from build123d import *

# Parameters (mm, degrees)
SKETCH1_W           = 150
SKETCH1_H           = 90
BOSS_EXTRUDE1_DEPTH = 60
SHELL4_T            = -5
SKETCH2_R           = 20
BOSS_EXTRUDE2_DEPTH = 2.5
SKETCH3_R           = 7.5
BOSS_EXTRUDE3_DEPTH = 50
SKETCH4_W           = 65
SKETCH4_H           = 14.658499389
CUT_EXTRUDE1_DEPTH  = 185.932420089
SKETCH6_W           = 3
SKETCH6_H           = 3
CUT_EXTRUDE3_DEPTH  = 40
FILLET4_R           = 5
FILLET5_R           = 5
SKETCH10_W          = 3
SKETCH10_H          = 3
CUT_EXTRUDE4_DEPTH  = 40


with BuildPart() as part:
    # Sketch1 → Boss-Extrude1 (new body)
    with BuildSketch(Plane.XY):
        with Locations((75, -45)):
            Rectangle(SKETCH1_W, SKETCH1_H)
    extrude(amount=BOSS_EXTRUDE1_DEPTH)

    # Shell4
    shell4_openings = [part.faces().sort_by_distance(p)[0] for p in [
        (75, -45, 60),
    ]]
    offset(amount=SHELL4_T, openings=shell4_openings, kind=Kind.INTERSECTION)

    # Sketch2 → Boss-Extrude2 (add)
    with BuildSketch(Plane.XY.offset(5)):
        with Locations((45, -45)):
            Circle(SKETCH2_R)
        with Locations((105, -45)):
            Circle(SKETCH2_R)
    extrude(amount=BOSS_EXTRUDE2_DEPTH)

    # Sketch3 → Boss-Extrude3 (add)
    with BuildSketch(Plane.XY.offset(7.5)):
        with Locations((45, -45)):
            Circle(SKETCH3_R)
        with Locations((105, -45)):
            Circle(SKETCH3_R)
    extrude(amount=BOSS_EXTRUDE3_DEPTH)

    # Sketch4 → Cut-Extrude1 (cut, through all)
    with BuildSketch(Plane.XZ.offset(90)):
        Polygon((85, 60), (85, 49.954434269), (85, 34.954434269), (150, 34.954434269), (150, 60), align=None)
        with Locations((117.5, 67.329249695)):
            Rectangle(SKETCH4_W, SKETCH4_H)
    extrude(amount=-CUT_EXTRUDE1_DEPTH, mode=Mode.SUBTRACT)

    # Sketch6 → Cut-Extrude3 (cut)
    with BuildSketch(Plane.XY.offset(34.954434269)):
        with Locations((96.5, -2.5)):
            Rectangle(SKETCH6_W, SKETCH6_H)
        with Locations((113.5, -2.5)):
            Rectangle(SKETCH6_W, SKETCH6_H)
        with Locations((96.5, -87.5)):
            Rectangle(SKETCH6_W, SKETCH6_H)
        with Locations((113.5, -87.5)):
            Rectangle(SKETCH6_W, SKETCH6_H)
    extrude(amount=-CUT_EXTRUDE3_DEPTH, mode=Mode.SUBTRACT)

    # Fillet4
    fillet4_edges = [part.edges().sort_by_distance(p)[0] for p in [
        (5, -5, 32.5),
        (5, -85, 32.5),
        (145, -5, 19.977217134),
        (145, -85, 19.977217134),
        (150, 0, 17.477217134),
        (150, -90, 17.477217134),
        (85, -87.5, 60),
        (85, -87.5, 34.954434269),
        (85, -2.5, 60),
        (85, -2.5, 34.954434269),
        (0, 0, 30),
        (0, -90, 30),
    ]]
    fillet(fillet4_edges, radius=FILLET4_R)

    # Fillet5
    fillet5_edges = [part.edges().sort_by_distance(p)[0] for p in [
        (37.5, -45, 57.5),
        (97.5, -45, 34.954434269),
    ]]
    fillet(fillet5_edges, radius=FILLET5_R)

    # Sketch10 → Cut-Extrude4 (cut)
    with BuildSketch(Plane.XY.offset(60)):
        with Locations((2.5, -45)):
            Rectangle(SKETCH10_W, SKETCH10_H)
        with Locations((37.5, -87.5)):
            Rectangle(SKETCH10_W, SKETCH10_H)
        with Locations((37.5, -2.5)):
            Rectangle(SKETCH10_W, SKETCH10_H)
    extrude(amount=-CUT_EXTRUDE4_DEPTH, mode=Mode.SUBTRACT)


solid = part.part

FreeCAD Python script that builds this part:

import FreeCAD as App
import Part
import Sketcher
from FreeCAD import Vector
Q = App.Units.Quantity


def edges_at(feature, points):
    """Names of the edges that pass closest to the given points."""
    edges = feature.Shape.Edges
    near = lambda p: min(range(len(edges)), key=lambda i: edges[i].distToShape(Part.Vertex(*p))[0])
    return sorted({f"Edge{near(p) + 1}" for p in points})


def faces_at(feature, points):
    """Names of the faces that lie closest to the given points."""
    faces = feature.Shape.Faces
    near = lambda p: min(range(len(faces)), key=lambda i: faces[i].distToShape(Part.Vertex(*p))[0])
    return sorted({f"Face{near(p) + 1}" for p in points})

doc = App.newDocument("Part")
body = doc.addObject("PartDesign::Body", "Body")

sketch1 = doc.addObject("Sketcher::SketchObject", "Sketch")
body.addObject(sketch1)
sketch1.AttachmentSupport = (doc.XY_Plane, [""])
sketch1.MapMode = "FlatFace"
sketch1.addGeometry([
    Part.LineSegment(Vector(0, 0, 0), Vector(0, -90, 0)),
    Part.LineSegment(Vector(0, -90, 0), Vector(150, -90, 0)),
    Part.LineSegment(Vector(150, -90, 0), Vector(150, 0, 0)),
    Part.LineSegment(Vector(150, 0, 0), Vector(0, 0, 0)),
], False)
sketch1.addConstraint([
    Sketcher.Constraint("Coincident", 0, 2, 1, 1),
    Sketcher.Constraint("Coincident", 1, 2, 2, 1),
    Sketcher.Constraint("Coincident", 2, 2, 3, 1),
    Sketcher.Constraint("Coincident", 3, 2, 0, 1),
    Sketcher.Constraint("Vertical", 0),
    Sketcher.Constraint("Horizontal", 1),
    Sketcher.Constraint("Vertical", 2),
    Sketcher.Constraint("Horizontal", 3),
    Sketcher.Constraint("Coincident", 3, 2, -1, 1),
    Sketcher.Constraint("DistanceX", 1, 1, 1, 2, Q("150 mm")),
    Sketcher.Constraint("DistanceY", 0, 2, 0, 1, Q("90 mm")),
])
pad1 = doc.addObject("PartDesign::Pad", "Pad")
body.addObject(pad1)
pad1.Profile = sketch1
pad1.Length = 60
doc.recompute()

thickness = doc.addObject("PartDesign::Thickness", "Thickness")
body.addObject(thickness)
thickness.Base = (pad1, faces_at(pad1, [(75, -45, 60)]))
thickness.Value = 5
thickness.Reversed = True
thickness.Join = "Intersection"

sketch2 = doc.addObject("Sketcher::SketchObject", "Sketch001")
body.addObject(sketch2)
sketch2.AttachmentSupport = (doc.XY_Plane, [""])
sketch2.MapMode = "FlatFace"
sketch2.AttachmentOffset = App.Placement(Vector(0, 0, 5), App.Rotation())
sketch2.addGeometry([
    Part.Circle(Vector(45, -45, 0), Vector(0, 0, 1), 20),
    Part.Circle(Vector(105, -45, 0), Vector(0, 0, 1), 20),
], False)
sketch2.addConstraint([
    Sketcher.Constraint("Equal", 0, 1),
    Sketcher.Constraint("Horizontal", 0, 3, 1, 3),
    Sketcher.Constraint("Diameter", 0, Q("40 mm")),
    Sketcher.Constraint("DistanceX", -1, 1, 0, 3, Q("45 mm")),
    Sketcher.Constraint("DistanceY", 0, 3, -1, 1, Q("45 mm")),
    Sketcher.Constraint("DistanceX", -1, 1, 1, 3, Q("105 mm")),
])
pad2 = doc.addObject("PartDesign::Pad", "Pad001")
body.addObject(pad2)
pad2.Profile = sketch2
pad2.Length = 2.5

sketch3 = doc.addObject("Sketcher::SketchObject", "Sketch002")
body.addObject(sketch3)
sketch3.AttachmentSupport = (doc.XY_Plane, [""])
sketch3.MapMode = "FlatFace"
sketch3.AttachmentOffset = App.Placement(Vector(0, 0, 7.5), App.Rotation())
sketch3.addGeometry([
    Part.Circle(Vector(45, -45, 0), Vector(0, 0, 1), 8),
    Part.Circle(Vector(105, -45, 0), Vector(0, 0, 1), 8),
], False)
sketch3.addConstraint([
    Sketcher.Constraint("Equal", 0, 1),
    Sketcher.Constraint("Horizontal", 0, 3, 1, 3),
    Sketcher.Constraint("Diameter", 0, Q("15 mm")),
    Sketcher.Constraint("DistanceX", -1, 1, 0, 3, Q("45 mm")),
    Sketcher.Constraint("DistanceY", 0, 3, -1, 1, Q("45 mm")),
    Sketcher.Constraint("DistanceX", -1, 1, 1, 3, Q("105 mm")),
])
pad3 = doc.addObject("PartDesign::Pad", "Pad002")
body.addObject(pad3)
pad3.Profile = sketch3
pad3.Length = 50

sketch4 = doc.addObject("Sketcher::SketchObject", "Sketch003")
body.addObject(sketch4)
sketch4.AttachmentSupport = (doc.XZ_Plane, [""])
sketch4.MapMode = "FlatFace"
sketch4.AttachmentOffset = App.Placement(Vector(0, 0, 90), App.Rotation())
sketch4.addGeometry([
    Part.LineSegment(Vector(85, 35, 0), Vector(150, 35, 0)),
    Part.LineSegment(Vector(150, 35, 0), Vector(150, 75, 0)),
    Part.LineSegment(Vector(150, 75, 0), Vector(85, 75, 0)),
    Part.LineSegment(Vector(85, 75, 0), Vector(85, 35, 0)),
], False)
sketch4.addConstraint([
    Sketcher.Constraint("Coincident", 0, 2, 1, 1),
    Sketcher.Constraint("Coincident", 1, 2, 2, 1),
    Sketcher.Constraint("Coincident", 2, 2, 3, 1),
    Sketcher.Constraint("Coincident", 3, 2, 0, 1),
    Sketcher.Constraint("Horizontal", 0),
    Sketcher.Constraint("Vertical", 1),
    Sketcher.Constraint("Horizontal", 2),
    Sketcher.Constraint("Vertical", 3),
    Sketcher.Constraint("DistanceX", 0, 1, 0, 2, Q("65 mm")),
    Sketcher.Constraint("DistanceX", -1, 1, 0, 2, Q("150 mm")),
    Sketcher.Constraint("DistanceY", -1, 1, 1, 2, Q("74.658499 mm")),
    Sketcher.Constraint("DistanceY", 1, 1, 1, 2, Q("39.704065 mm")),
])
pocket1 = doc.addObject("PartDesign::Pocket", "Pocket")
body.addObject(pocket1)
pocket1.Profile = sketch4
pocket1.Type = "ThroughAll"

sketch5 = doc.addObject("Sketcher::SketchObject", "Sketch004")
body.addObject(sketch5)
sketch5.AttachmentSupport = (doc.XY_Plane, [""])
sketch5.MapMode = "FlatFace"
sketch5.AttachmentOffset = App.Placement(Vector(0, 0, 34.954434), App.Rotation())
sketch5.addGeometry([
    Part.LineSegment(Vector(95, -1, 0), Vector(95, -4, 0)),
    Part.LineSegment(Vector(95, -4, 0), Vector(98, -4, 0)),
    Part.LineSegment(Vector(98, -4, 0), Vector(98, -1, 0)),
    Part.LineSegment(Vector(98, -1, 0), Vector(95, -1, 0)),
    Part.LineSegment(Vector(112, -1, 0), Vector(112, -4, 0)),
    Part.LineSegment(Vector(112, -4, 0), Vector(115, -4, 0)),
    Part.LineSegment(Vector(115, -4, 0), Vector(115, -1, 0)),
    Part.LineSegment(Vector(115, -1, 0), Vector(112, -1, 0)),
    Part.LineSegment(Vector(95, -86, 0), Vector(95, -89, 0)),
    Part.LineSegment(Vector(95, -89, 0), Vector(98, -89, 0)),
    Part.LineSegment(Vector(98, -89, 0), Vector(98, -86, 0)),
    Part.LineSegment(Vector(98, -86, 0), Vector(95, -86, 0)),
    Part.LineSegment(Vector(112, -86, 0), Vector(112, -89, 0)),
    Part.LineSegment(Vector(112, -89, 0), Vector(115, -89, 0)),
    Part.LineSegment(Vector(115, -89, 0), Vector(115, -86, 0)),
    Part.LineSegment(Vector(115, -86, 0), Vector(112, -86, 0)),
], False)
sketch5.addConstraint([
    Sketcher.Constraint("Coincident", 0, 2, 1, 1),
    Sketcher.Constraint("Coincident", 1, 2, 2, 1),
    Sketcher.Constraint("Coincident", 2, 2, 3, 1),
    Sketcher.Constraint("Coincident", 3, 2, 0, 1),
    Sketcher.Constraint("Coincident", 4, 2, 5, 1),
    Sketcher.Constraint("Coincident", 5, 2, 6, 1),
    Sketcher.Constraint("Coincident", 6, 2, 7, 1),
    Sketcher.Constraint("Coincident", 7, 2, 4, 1),
    Sketcher.Constraint("Coincident", 8, 2, 9, 1),
    Sketcher.Constraint("Coincident", 9, 2, 10, 1),
    Sketcher.Constraint("Coincident", 10, 2, 11, 1),
    Sketcher.Constraint("Coincident", 11, 2, 8, 1),
    Sketcher.Constraint("Coincident", 12, 2, 13, 1),
    Sketcher.Constraint("Coincident", 13, 2, 14, 1),
    Sketcher.Constraint("Coincident", 14, 2, 15, 1),
    Sketcher.Constraint("Coincident", 15, 2, 12, 1),
    Sketcher.Constraint("Vertical", 0),
    Sketcher.Constraint("Horizontal", 1),
    Sketcher.Constraint("Vertical", 2),
    Sketcher.Constraint("Horizontal", 3),
    Sketcher.Constraint("Vertical", 4),
    Sketcher.Constraint("Horizontal", 5),
    Sketcher.Constraint("Vertical", 6),
    Sketcher.Constraint("Horizontal", 7),
    Sketcher.Constraint("Vertical", 8),
    Sketcher.Constraint("Horizontal", 9),
    Sketcher.Constraint("Vertical", 10),
    Sketcher.Constraint("Horizontal", 11),
    Sketcher.Constraint("Vertical", 12),
    Sketcher.Constraint("Horizontal", 13),
    Sketcher.Constraint("Vertical", 14),
    Sketcher.Constraint("Horizontal", 15),
    Sketcher.Constraint("Horizontal", 1, 2, 4, 2),
    Sketcher.Constraint("Horizontal", 3, 2, 6, 2),
    Sketcher.Constraint("Horizontal", 9, 2, 12, 2),
    Sketcher.Constraint("Horizontal", 11, 2, 14, 2),
    Sketcher.Constraint("Vertical", 3, 2, 8, 2),
    Sketcher.Constraint("Vertical", 2, 2, 9, 2),
    Sketcher.Constraint("Vertical", 7, 2, 12, 2),
    Sketcher.Constraint("Vertical", 6, 2, 13, 2),
    Sketcher.Constraint("Equal", 3, 5),
    Sketcher.Constraint("Equal", 15, 0),
    Sketcher.Constraint("Equal", 6, 8),
    Sketcher.Constraint("DistanceX", 1, 1, 1, 2, Q("3 mm")),
    Sketcher.Constraint("DistanceX", -1, 1, 0, 2, Q("95 mm")),
    Sketcher.Constraint("DistanceY", 0, 2, -1, 1, Q("4 mm")),
    Sketcher.Constraint("DistanceX", -1, 1, 4, 2, Q("112 mm")),
    Sketcher.Constraint("DistanceY", 8, 2, -1, 1, Q("89 mm")),
])
pocket2 = doc.addObject("PartDesign::Pocket", "Pocket001")
body.addObject(pocket2)
pocket2.Profile = sketch5
pocket2.Length = 40
doc.recompute()

fillet = doc.addObject("PartDesign::Fillet", "Fillet")
body.addObject(fillet)
fillet.Base = (pocket2, edges_at(pocket2, [
    (5, -5, 32.5),
    (5, -85, 32.5),
    (145, -5, 19.977),
    (145, -85, 19.977),
    (150, 0, 17.477),
    (150, -90, 17.477),
    (85, -87.5, 60),
    (85, -87.5, 34.954),
    (85, -2.5, 60),
    (85, -2.5, 34.954),
    (0, 0, 30),
    (0, -90, 30),
]))
fillet.Radius = 5
doc.recompute()

fillet2 = doc.addObject("PartDesign::Fillet", "Fillet001")
body.addObject(fillet2)
fillet2.Base = (fillet, edges_at(fillet, [(37.5, -45, 57.5), (97.5, -45, 34.954)]))
fillet2.Radius = 5

sketch6 = doc.addObject("Sketcher::SketchObject", "Sketch005")
body.addObject(sketch6)
sketch6.AttachmentSupport = (doc.XY_Plane, [""])
sketch6.MapMode = "FlatFace"
sketch6.AttachmentOffset = App.Placement(Vector(0, 0, 60), App.Rotation())
sketch6.addGeometry([
    Part.LineSegment(Vector(1, -43.5, 0), Vector(1, -46.5, 0)),
    Part.LineSegment(Vector(1, -46.5, 0), Vector(4, -46.5, 0)),
    Part.LineSegment(Vector(4, -46.5, 0), Vector(4, -43.5, 0)),
    Part.LineSegment(Vector(4, -43.5, 0), Vector(1, -43.5, 0)),
    Part.LineSegment(Vector(36, -86, 0), Vector(36, -89, 0)),
    Part.LineSegment(Vector(36, -89, 0), Vector(39, -89, 0)),
    Part.LineSegment(Vector(39, -89, 0), Vector(39, -86, 0)),
    Part.LineSegment(Vector(39, -86, 0), Vector(36, -86, 0)),
    Part.LineSegment(Vector(36, -1, 0), Vector(36, -4, 0)),
    Part.LineSegment(Vector(36, -4, 0), Vector(39, -4, 0)),
    Part.LineSegment(Vector(39, -4, 0), Vector(39, -1, 0)),
    Part.LineSegment(Vector(39, -1, 0), Vector(36, -1, 0)),
], False)
sketch6.addConstraint([
    Sketcher.Constraint("Coincident", 0, 2, 1, 1),
    Sketcher.Constraint("Coincident", 1, 2, 2, 1),
    Sketcher.Constraint("Coincident", 2, 2, 3, 1),
    Sketcher.Constraint("Coincident", 3, 2, 0, 1),
    Sketcher.Constraint("Coincident", 4, 2, 5, 1),
    Sketcher.Constraint("Coincident", 5, 2, 6, 1),
    Sketcher.Constraint("Coincident", 6, 2, 7, 1),
    Sketcher.Constraint("Coincident", 7, 2, 4, 1),
    Sketcher.Constraint("Coincident", 8, 2, 9, 1),
    Sketcher.Constraint("Coincident", 9, 2, 10, 1),
    Sketcher.Constraint("Coincident", 10, 2, 11, 1),
    Sketcher.Constraint("Coincident", 11, 2, 8, 1),
    Sketcher.Constraint("Vertical", 0),
    Sketcher.Constraint("Horizontal", 1),
    Sketcher.Constraint("Vertical", 2),
    Sketcher.Constraint("Horizontal", 3),
    Sketcher.Constraint("Vertical", 4),
    Sketcher.Constraint("Horizontal", 5),
    Sketcher.Constraint("Vertical", 6),
    Sketcher.Constraint("Horizontal", 7),
    Sketcher.Constraint("Vertical", 8),
    Sketcher.Constraint("Horizontal", 9),
    Sketcher.Constraint("Vertical", 10),
    Sketcher.Constraint("Horizontal", 11),
    Sketcher.Constraint("Vertical", 7, 2, 8, 2),
    Sketcher.Constraint("Vertical", 6, 2, 9, 2),
    Sketcher.Constraint("Equal", 3, 5),
    Sketcher.Constraint("Equal", 11, 0),
    Sketcher.Constraint("Equal", 2, 4),
    Sketcher.Constraint("Equal", 6, 8),
    Sketcher.Constraint("DistanceX", 1, 1, 1, 2, Q("3 mm")),
    Sketcher.Constraint("DistanceX", -1, 1, 0, 2, Q("1 mm")),
    Sketcher.Constraint("DistanceX", -1, 1, 4, 2, Q("36 mm")),
    Sketcher.Constraint("DistanceY", 4, 2, -1, 1, Q("89 mm")),
    Sketcher.Constraint("DistanceY", 8, 2, -1, 1, Q("4 mm")),
    Sketcher.Constraint("DistanceY", 0, 2, -1, 1, Q("46.5 mm")),
])
pocket3 = doc.addObject("PartDesign::Pocket", "Pocket002")
body.addObject(pocket3)
pocket3.Profile = sketch6
pocket3.Length = 40

doc.recompute()
